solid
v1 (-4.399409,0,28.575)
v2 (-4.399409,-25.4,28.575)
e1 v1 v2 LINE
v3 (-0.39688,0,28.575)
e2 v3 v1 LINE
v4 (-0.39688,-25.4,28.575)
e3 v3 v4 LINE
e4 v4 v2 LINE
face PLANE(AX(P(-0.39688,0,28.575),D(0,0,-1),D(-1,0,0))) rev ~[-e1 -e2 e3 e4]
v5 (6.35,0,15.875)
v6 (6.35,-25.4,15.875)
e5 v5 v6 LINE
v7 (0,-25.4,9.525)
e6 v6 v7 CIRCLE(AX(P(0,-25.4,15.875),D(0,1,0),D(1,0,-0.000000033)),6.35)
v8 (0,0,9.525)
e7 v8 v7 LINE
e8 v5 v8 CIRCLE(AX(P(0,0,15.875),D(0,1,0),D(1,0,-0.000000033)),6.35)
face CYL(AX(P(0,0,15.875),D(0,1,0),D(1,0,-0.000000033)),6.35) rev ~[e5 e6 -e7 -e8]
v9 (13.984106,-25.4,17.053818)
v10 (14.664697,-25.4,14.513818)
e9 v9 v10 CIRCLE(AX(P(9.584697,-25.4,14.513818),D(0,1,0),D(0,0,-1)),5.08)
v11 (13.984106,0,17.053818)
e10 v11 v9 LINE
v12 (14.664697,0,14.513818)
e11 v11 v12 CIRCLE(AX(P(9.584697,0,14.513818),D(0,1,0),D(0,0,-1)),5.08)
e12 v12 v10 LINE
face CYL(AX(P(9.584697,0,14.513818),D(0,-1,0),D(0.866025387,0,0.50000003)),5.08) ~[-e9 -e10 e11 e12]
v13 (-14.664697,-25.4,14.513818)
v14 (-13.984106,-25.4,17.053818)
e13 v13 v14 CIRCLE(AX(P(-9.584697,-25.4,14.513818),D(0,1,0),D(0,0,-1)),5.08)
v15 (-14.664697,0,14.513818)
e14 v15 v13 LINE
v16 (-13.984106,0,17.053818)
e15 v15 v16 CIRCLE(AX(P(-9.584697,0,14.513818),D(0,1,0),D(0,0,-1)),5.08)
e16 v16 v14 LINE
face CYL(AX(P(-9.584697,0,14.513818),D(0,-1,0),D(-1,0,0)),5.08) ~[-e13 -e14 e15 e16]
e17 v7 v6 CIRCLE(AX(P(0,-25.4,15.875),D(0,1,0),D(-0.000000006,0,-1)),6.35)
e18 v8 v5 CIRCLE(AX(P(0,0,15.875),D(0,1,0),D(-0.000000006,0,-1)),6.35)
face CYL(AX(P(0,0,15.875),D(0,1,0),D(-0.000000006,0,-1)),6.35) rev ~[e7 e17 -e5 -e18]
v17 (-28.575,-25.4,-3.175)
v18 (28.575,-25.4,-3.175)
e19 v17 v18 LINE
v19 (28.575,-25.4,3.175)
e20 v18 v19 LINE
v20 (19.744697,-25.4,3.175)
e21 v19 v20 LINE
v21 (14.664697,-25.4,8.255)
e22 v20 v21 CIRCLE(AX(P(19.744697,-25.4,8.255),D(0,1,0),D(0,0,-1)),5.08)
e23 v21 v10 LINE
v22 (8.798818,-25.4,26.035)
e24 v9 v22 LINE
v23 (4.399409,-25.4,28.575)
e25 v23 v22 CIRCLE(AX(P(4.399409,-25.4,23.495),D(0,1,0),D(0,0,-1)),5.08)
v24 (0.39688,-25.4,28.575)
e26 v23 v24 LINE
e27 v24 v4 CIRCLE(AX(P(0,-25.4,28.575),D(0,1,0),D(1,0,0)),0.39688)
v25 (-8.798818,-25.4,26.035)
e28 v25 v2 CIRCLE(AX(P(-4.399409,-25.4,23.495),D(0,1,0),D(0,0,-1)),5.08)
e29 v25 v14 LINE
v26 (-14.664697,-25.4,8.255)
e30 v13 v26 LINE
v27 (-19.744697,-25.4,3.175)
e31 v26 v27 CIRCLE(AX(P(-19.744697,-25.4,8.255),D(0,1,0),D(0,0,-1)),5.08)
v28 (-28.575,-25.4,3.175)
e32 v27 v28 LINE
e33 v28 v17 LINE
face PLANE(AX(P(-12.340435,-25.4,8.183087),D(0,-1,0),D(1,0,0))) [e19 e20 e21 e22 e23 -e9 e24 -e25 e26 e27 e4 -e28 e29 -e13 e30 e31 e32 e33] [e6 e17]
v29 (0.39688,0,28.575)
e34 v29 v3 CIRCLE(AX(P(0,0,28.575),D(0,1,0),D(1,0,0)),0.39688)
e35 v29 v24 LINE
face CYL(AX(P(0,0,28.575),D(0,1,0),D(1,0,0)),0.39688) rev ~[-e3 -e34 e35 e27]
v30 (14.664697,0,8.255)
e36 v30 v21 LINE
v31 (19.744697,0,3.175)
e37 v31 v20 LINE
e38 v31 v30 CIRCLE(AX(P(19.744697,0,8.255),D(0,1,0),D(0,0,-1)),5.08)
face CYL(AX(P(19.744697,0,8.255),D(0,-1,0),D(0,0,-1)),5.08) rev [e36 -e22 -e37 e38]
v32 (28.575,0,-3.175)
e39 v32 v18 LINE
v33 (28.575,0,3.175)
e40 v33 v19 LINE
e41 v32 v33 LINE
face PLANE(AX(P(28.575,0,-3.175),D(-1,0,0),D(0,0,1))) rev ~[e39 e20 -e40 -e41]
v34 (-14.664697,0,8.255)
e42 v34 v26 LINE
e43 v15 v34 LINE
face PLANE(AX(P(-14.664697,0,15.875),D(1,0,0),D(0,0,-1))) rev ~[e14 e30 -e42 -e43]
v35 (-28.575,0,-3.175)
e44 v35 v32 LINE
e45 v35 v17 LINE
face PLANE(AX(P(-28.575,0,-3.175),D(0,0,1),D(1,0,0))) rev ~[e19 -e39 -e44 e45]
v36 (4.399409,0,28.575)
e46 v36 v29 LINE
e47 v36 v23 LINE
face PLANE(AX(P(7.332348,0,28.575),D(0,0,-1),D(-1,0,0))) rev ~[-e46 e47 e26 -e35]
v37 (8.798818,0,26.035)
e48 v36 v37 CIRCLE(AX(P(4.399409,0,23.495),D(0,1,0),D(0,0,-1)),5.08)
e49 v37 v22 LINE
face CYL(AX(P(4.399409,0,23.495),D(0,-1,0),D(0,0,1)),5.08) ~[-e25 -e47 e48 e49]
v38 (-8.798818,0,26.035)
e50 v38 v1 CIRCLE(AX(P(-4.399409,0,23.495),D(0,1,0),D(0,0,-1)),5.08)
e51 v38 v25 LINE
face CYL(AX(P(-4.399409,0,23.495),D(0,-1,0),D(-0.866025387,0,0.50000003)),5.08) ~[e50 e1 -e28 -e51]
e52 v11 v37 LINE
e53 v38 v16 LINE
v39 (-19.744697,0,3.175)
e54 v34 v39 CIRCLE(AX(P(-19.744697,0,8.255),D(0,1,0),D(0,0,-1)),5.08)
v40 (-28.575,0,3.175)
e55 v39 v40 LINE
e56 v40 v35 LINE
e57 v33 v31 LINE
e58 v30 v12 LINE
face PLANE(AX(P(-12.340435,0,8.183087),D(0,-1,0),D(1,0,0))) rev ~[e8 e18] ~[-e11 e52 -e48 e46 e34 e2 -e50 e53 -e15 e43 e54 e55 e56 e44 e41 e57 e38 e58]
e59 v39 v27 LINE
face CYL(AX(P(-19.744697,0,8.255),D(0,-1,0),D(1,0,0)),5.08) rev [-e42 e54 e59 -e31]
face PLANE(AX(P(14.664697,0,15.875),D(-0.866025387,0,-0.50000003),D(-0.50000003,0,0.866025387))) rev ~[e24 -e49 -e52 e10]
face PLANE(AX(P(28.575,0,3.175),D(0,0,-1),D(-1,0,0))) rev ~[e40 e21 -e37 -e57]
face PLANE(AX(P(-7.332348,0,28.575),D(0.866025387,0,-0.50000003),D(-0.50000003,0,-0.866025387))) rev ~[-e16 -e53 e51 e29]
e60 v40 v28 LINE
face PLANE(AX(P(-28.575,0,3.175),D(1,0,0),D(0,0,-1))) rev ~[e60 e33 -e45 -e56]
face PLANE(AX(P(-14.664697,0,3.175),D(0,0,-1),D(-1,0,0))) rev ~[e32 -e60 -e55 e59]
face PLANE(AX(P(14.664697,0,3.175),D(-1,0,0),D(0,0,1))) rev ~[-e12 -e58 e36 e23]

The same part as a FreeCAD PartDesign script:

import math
import FreeCAD as App
import Part
import Sketcher

V = App.Vector
Q = App.Units.Quantity


def edges_at(feature, points):
    """Names of the edges that pass closest to the given points."""
    edges = feature.Shape.Edges
    near = lambda p: min(range(len(edges)), key=lambda i: edges[i].distToShape(Part.Vertex(*p))[0])
    return sorted({f"Edge{near(p) + 1}" for p in points})

doc = App.newDocument("Part")
params = doc.addObject("Spreadsheet::Sheet", "Params")
for row, (alias, value) in enumerate([
    ("sketch1_radius", "0.25 in"),
    ("sketch1_height", "0.5 in"),
    ("sketch1_width", "2.25 in"),
    ("sketch1_height2", "0.25 in"),
    ("pad1_length", "1 in"),
    ("fillet_radius", "0.2 in"),
], start=1):
    params.set(f"A{row}", alias)
    params.set(f"B{row}", "=" + value)
    params.setAlias(f"B{row}", alias)

body = doc.addObject("PartDesign::Body", "Body")

sketch1 = body.newObject("Sketcher::SketchObject", "Sketch")
sketch1.AttachmentSupport = (doc.getObject("XZ_Plane"), [""])
sketch1.MapMode = "FlatFace"
sketch1.addGeometry([
    Part.LineSegment(V(-14.66, 15.88, 0), V(-14.66, 3.17, 0)),
    Part.LineSegment(V(-14.66, 3.17, 0), V(-28.57, 3.17, 0)),
    Part.LineSegment(V(-28.57, 3.17, 0), V(-28.57, -3.17, 0)),
    Part.LineSegment(V(-28.57, -3.17, 0), V(28.57, -3.17, 0)),
    Part.LineSegment(V(28.57, -3.17, 0), V(28.57, 3.17, 0)),
    Part.LineSegment(V(28.57, 3.17, 0), V(14.66, 3.17, 0)),
    Part.LineSegment(V(14.66, 3.17, 0), V(14.66, 15.88, 0)),
    Part.LineSegment(V(14.66, 15.88, 0), V(7.33, 28.57, 0)),
    Part.LineSegment(V(7.33, 28.57, 0), V(0.4, 28.57, 0)),
    Part.ArcOfCircle(Part.Circle(V(0, 28.57, 0), V(0, 0, 1), 0.4), math.radians(180), math.radians(360)),
    Part.LineSegment(V(-0.4, 28.57, 0), V(-7.33, 28.57, 0)),
    Part.LineSegment(V(-7.33, 28.57, 0), V(-14.66, 15.88, 0)),
    Part.ArcOfCircle(Part.Circle(V(0, 15.87, 0), V(0, 0, 1), 6.35), math.radians(0), math.radians(270)),
    Part.ArcOfCircle(Part.Circle(V(0, 15.88, 0), V(0, 0, 1), 6.35), math.radians(-90), math.radians(0)),
], False)
sketch1.addConstraint([
    Sketcher.Constraint("Coincident", 0, 2, 1, 1),
    Sketcher.Constraint("Coincident", 1, 2, 2, 1),
    Sketcher.Constraint("Coincident", 2, 2, 3, 1),
    Sketcher.Constraint("Coincident", 3, 2, 4, 1),
    Sketcher.Constraint("Coincident", 4, 2, 5, 1),
    Sketcher.Constraint("Coincident", 5, 2, 6, 1),
    Sketcher.Constraint("Coincident", 6, 2, 7, 1),
    Sketcher.Constraint("Coincident", 7, 2, 8, 1),
    Sketcher.Constraint("Coincident", 8, 2, 9, 2),
    Sketcher.Constraint("Coincident", 9, 1, 10, 1),
    Sketcher.Constraint("Coincident", 10, 2, 11, 1),
    Sketcher.Constraint("Coincident", 11, 2, 0, 1),
    Sketcher.Constraint("Tangent", 12, 1, 13, 2),
    Sketcher.Constraint("Coincident", 13, 1, 12, 2),
    Sketcher.Constraint("Vertical", 0),
    Sketcher.Constraint("Horizontal", 1),
    Sketcher.Constraint("Vertical", 2),
    Sketcher.Constraint("Horizontal", 3),
    Sketcher.Constraint("Vertical", 4),
    Sketcher.Constraint("Horizontal", 5),
    Sketcher.Constraint("Vertical", 6),
    Sketcher.Constraint("Horizontal", 8),
    Sketcher.Constraint("Horizontal", 10),
    Sketcher.Constraint("Symmetric", 1, 2, 3, 2, -1, 1),
    Sketcher.Constraint("Symmetric", 0, 2, 5, 2, -2),
    Sketcher.Constraint("Symmetric", 8, 2, 9, 1, -2),
    Sketcher.Constraint("PointOnObject", 12, 3, -2),
    Sketcher.Constraint("PointOnObject", 13, 1, -2),
    Sketcher.Constraint("Horizontal", 13, 3, 6, 2),
    Sketcher.Constraint("Horizontal", 9, 3, 7, 2),
    Sketcher.Constraint("Horizontal", 6, 2, 11, 2),
    Sketcher.Constraint("Horizontal", 11, 2, 12, 1),
    Sketcher.Constraint("Equal", 8, 10),
    Sketcher.Constraint("Radius", 12, Q("0.25 in")),
    Sketcher.Constraint("DistanceY", 0, 2, 0, 1, Q("0.5 in")),
    Sketcher.Constraint("Angle", 7, Q("120.000002 deg")),
    Sketcher.Constraint("DistanceY", 0, 2, 9, 3, Q("1 in")),
    Sketcher.Constraint("DistanceX", 3, 1, 3, 2, Q("2.25 in")),
    Sketcher.Constraint("DistanceY", 2, 2, 2, 1, Q("0.25 in")),
    Sketcher.Constraint("Radius", 9, Q("0.39688 mm")),
    Sketcher.Constraint("DistanceX", 1, 2, 1, 1, Q("13.910303 mm")),
])
sketch1.setExpression("Constraints[33]", "Params.sketch1_radius")
sketch1.setExpression("Constraints[34]", "Params.sketch1_height")
sketch1.setExpression("Constraints[37]", "Params.sketch1_width")
sketch1.setExpression("Constraints[38]", "Params.sketch1_height2")
pad1 = body.newObject("PartDesign::Pad", "Pad")
pad1.Profile = sketch1
pad1.setExpression("Length", "Params.pad1_length")
doc.recompute()

fillet = body.newObject("PartDesign::Fillet", "Fillet")
fillet.Base = (pad1, edges_at(pad1, [
    (-7.332, -12.7, 28.575),
    (7.332, -12.7, 28.575),
    (14.665, -12.7, 15.875),
    (14.665, -12.7, 3.175),
    (-14.665, -12.7, 15.875),
    (-14.665, -12.7, 3.175),
]))
fillet.setExpression("Radius", "Params.fillet_radius")

doc.recompute()
